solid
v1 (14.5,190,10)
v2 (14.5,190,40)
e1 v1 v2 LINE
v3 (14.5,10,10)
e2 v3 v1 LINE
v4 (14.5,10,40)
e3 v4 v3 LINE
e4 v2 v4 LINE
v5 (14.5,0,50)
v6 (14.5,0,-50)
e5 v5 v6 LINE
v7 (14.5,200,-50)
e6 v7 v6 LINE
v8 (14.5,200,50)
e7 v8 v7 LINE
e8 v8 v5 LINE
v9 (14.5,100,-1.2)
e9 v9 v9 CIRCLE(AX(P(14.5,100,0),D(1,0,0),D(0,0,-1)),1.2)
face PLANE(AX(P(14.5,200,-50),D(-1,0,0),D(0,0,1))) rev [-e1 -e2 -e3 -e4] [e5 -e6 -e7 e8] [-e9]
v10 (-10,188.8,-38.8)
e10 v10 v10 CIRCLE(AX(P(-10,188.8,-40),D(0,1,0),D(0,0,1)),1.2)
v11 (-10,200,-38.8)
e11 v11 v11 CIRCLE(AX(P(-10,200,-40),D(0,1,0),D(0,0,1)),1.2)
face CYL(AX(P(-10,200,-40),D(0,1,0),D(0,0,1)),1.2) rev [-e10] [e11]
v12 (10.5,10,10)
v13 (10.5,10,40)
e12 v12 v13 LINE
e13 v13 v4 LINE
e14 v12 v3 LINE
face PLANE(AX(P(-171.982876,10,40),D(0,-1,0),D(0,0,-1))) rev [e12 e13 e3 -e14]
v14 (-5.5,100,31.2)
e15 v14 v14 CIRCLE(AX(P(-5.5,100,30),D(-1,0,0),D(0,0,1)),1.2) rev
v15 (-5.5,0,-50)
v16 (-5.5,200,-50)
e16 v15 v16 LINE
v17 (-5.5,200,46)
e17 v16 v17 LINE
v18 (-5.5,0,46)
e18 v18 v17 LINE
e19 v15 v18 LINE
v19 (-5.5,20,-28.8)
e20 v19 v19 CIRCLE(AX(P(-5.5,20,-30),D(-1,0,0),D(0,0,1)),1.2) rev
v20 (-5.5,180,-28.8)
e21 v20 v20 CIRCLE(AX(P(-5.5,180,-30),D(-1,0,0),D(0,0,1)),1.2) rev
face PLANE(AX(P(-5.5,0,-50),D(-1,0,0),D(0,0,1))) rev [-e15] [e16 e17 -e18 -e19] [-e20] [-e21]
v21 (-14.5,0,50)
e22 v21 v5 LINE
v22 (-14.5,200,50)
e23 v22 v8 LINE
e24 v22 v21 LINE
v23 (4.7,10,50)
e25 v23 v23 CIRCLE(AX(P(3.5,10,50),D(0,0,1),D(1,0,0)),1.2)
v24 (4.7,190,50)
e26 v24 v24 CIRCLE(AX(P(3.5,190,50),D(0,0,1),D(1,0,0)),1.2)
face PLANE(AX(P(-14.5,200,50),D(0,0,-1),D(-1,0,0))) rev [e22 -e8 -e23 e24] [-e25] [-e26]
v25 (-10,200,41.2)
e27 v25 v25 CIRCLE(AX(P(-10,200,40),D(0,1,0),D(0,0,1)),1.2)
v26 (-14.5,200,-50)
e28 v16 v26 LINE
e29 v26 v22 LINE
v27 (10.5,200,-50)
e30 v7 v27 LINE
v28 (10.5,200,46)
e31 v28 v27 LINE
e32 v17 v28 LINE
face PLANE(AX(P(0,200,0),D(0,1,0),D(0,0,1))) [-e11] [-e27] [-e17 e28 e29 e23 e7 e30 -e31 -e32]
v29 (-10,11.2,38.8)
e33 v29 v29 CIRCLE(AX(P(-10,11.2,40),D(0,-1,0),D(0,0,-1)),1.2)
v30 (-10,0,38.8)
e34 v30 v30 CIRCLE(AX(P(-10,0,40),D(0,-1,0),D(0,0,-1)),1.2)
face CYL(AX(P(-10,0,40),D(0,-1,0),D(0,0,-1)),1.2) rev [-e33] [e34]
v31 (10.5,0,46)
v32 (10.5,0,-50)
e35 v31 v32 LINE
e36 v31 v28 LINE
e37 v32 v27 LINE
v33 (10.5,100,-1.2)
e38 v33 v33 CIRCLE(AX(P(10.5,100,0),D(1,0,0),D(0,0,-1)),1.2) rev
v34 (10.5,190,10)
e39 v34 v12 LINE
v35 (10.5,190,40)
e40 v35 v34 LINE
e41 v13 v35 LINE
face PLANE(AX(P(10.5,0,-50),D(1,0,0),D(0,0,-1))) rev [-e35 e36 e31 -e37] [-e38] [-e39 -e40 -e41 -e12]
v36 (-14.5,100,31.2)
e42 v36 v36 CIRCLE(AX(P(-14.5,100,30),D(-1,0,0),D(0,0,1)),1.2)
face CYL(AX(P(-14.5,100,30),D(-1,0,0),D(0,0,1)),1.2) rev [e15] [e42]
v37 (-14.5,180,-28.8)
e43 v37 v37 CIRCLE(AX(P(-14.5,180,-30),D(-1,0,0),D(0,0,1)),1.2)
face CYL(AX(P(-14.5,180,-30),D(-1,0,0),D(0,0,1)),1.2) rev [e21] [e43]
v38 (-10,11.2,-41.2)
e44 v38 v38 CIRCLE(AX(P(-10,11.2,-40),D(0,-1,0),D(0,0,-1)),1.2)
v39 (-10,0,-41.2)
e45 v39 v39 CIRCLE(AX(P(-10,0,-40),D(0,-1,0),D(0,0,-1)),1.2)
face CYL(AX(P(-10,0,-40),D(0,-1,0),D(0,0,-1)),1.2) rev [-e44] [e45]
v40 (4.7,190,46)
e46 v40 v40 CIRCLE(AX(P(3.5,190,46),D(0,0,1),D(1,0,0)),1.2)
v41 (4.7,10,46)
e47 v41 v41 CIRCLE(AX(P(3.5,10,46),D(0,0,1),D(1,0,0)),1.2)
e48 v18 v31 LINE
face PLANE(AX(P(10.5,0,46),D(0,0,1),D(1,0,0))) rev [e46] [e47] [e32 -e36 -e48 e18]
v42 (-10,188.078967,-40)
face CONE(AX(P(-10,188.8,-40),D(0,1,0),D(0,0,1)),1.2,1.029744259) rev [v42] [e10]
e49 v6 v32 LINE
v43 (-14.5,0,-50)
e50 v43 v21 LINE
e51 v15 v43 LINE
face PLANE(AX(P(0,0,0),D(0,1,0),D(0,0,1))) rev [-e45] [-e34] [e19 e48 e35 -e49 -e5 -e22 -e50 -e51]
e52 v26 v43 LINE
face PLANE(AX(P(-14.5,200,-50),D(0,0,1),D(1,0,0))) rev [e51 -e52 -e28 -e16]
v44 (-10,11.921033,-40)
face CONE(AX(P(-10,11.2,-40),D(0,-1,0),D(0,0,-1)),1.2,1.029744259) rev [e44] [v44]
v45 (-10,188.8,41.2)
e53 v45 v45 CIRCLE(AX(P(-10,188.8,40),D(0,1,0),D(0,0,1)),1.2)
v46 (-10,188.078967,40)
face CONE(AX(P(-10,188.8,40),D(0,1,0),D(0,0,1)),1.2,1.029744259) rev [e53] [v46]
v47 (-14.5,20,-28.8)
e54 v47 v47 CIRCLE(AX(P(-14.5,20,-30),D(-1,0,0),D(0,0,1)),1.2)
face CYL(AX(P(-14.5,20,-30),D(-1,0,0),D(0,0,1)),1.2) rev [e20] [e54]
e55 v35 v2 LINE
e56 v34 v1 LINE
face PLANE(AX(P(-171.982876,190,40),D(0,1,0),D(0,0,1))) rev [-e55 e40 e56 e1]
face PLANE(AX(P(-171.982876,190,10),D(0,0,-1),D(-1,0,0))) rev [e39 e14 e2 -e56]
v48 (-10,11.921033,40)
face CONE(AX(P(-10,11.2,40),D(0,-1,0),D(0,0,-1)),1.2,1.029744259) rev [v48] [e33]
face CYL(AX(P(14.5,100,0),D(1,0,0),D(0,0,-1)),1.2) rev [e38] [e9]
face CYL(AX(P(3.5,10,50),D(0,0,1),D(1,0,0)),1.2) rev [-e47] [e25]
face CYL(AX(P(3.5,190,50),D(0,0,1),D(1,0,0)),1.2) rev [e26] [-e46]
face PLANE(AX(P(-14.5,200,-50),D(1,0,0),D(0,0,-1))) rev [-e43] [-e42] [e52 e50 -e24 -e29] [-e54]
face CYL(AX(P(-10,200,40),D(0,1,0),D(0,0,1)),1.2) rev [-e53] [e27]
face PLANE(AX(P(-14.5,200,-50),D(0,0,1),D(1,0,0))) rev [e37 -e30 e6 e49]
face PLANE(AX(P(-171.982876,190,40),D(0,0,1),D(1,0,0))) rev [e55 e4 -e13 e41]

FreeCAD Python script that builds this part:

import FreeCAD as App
import Part
import Sketcher

V = App.Vector
Q = App.Units.Quantity


def add_polygon(sketch, points):
    """Adds a closed chain of lines whose ends are joined by coincident constraints."""
    first, n = sketch.GeometryCount, len(points)
    for a, b in zip(points, points[1:] + points[:1]):
        sketch.addGeometry(Part.LineSegment(App.Vector(*a, 0), App.Vector(*b, 0)), False)
    for i in range(n):
        sketch.addConstraint(Sketcher.Constraint("Coincident", first + i, 2, first + (i + 1) % n, 1))

doc = App.newDocument("Part")
body = doc.addObject("PartDesign::Body", "Body")

sketch1 = body.newObject("Sketcher::SketchObject", "Sketch")
sketch1.AttachmentSupport = (doc.getObject("XZ_Plane"), [""])
sketch1.MapMode = "FlatFace"
add_polygon(sketch1, [(-14.5, -50), (-14.5, 50), (14.5, 50), (14.5, -50)])
sketch1.addConstraint([
    Sketcher.Constraint("Vertical", 0),
    Sketcher.Constraint("Horizontal", 1),
    Sketcher.Constraint("Vertical", 2),
    Sketcher.Constraint("Horizontal", 3),
    Sketcher.Constraint("Symmetric", 0, 2, 2, 2, -1, 1),
    Sketcher.Constraint("DistanceX", 1, 1, 1, 2, Q("29 mm")),
    Sketcher.Constraint("DistanceY", 0, 1, 0, 2, Q("100 mm")),
])
pad1 = body.newObject("PartDesign::Pad", "Pad")
pad1.Profile = sketch1
pad1.Length = 200
pad1.Reversed = True

sketch2 = body.newObject("Sketcher::SketchObject", "Sketch001")
sketch2.AttachmentSupport = (doc.getObject("XZ_Plane"), [""])
sketch2.MapMode = "FlatFace"
sketch2.AttachmentOffset = App.Placement(V(0, 0, -200), App.Rotation())
add_polygon(sketch2, [(-5.5, -50), (-5.5, 46), (10.5, 46), (10.5, -50)])
sketch2.addConstraint([
    Sketcher.Constraint("Vertical", 0),
    Sketcher.Constraint("Horizontal", 1),
    Sketcher.Constraint("Vertical", 2),
    Sketcher.Constraint("Horizontal", 3),
    Sketcher.Constraint("DistanceX", 1, 1, 1, 2, Q("16 mm")),
    Sketcher.Constraint("DistanceY", 0, 1, 0, 2, Q("96 mm")),
    Sketcher.Constraint("DistanceY", -1, 1, 0, 2, Q("46 mm")),
    Sketcher.Constraint("DistanceX", 0, 2, -1, 1, Q("5.5 mm")),
])
pocket1 = body.newObject("PartDesign::Pocket", "Pocket")
pocket1.Profile = sketch2
pocket1.Type = "ThroughAll"
pocket1.Reversed = True

sketch3 = body.newObject("Sketcher::SketchObject", "Sketch002")
sketch3.AttachmentSupport = (doc.getObject("YZ_Plane"), [""])
sketch3.MapMode = "FlatFace"
sketch3.AttachmentOffset = App.Placement(V(0, 0, 14.5), App.Rotation())
add_polygon(sketch3, [(190, 40), (10, 40), (10, 10), (190, 10)])
sketch3.addConstraint([
    Sketcher.Constraint("Horizontal", 0),
    Sketcher.Constraint("Vertical", 1),
    Sketcher.Constraint("Horizontal", 2),
    Sketcher.Constraint("Vertical", 3),
    Sketcher.Constraint("DistanceX", 0, 2, 0, 1, Q("180 mm")),
    Sketcher.Constraint("DistanceY", 1, 2, 1, 1, Q("30 mm")),
    Sketcher.Constraint("DistanceX", -1, 1, 0, 2, Q("10 mm")),
    Sketcher.Constraint("DistanceY", -1, 1, 0, 2, Q("40 mm")),
])
pocket2 = body.newObject("PartDesign::Pocket", "Pocket001")
pocket2.Profile = sketch3
pocket2.Length = 4

sketch4 = body.newObject("Sketcher::SketchObject", "Sketch003")
sketch4.AttachmentSupport = (doc.getObject("XZ_Plane"), [""])
sketch4.MapMode = "FlatFace"
sketch4.AttachmentOffset = App.Placement(V(0, 0, -200), App.Rotation())
sketch4.addGeometry([
    Part.Circle(V(-10, -40, 0), V(0, 0, 1), 1.2),
    Part.Circle(V(-10, 40, 0), V(0, 0, 1), 1.2),
], False)
sketch4.addConstraint([
    Sketcher.Constraint("Equal", 0, 1),
    Sketcher.Constraint("Symmetric", 0, 3, 1, 3, -1),
    Sketcher.Constraint("Diameter", 0, Q("2.4 mm")),
    Sketcher.Constraint("DistanceX", 0, 3, -1, 1, Q("10 mm")),
    Sketcher.Constraint("DistanceY", 0, 3, -1, 1, Q("40 mm")),
])
doc.recompute()
hole = body.newObject("PartDesign::Hole", "Hole")
hole.Profile = sketch4
hole.ThreadType = "None"
hole.Diameter = 2.4
hole.DepthType = "Dimension"
hole.Depth = 11.2
hole.DrillPoint = "Angled"
hole.DrillPointAngle = 118
hole.Reversed = True

sketch5 = body.newObject("Sketcher::SketchObject", "Sketch004")
sketch5.AttachmentSupport = (doc.getObject("XZ_Plane"), [""])
sketch5.MapMode = "FlatFace"
sketch5.addGeometry([
    Part.Circle(V(-10, -40, 0), V(0, 0, 1), 1.2),
    Part.Circle(V(-10, 40, 0), V(0, 0, 1), 1.2),
], False)
sketch5.addConstraint([
    Sketcher.Constraint("Equal", 0, 1),
    Sketcher.Constraint("Symmetric", 0, 3, 1, 3, -1),
    Sketcher.Constraint("Diameter", 0, Q("2.4 mm")),
    Sketcher.Constraint("DistanceX", 0, 3, -1, 1, Q("10 mm")),
    Sketcher.Constraint("DistanceY", 0, 3, -1, 1, Q("40 mm")),
])
doc.recompute()
hole2 = body.newObject("PartDesign::Hole", "Hole001")
hole2.Profile = sketch5
hole2.ThreadType = "None"
hole2.Diameter = 2.4
hole2.DepthType = "Dimension"
hole2.Depth = 11.2
hole2.DrillPoint = "Angled"
hole2.DrillPointAngle = 118

sketch6 = body.newObject("Sketcher::SketchObject", "Sketch005")
sketch6.AttachmentSupport = (doc.getObject("YZ_Plane"), [""])
sketch6.MapMode = "FlatFace"
sketch6.AttachmentOffset = App.Placement(V(0, 0, -14.5), App.Rotation())
sketch6.addGeometry(Part.Circle(V(180, -30, 0), V(0, 0, 1), 1.2), False)
sketch6.addConstraint([
    Sketcher.Constraint("Diameter", 0, Q("2.4 mm")),
    Sketcher.Constraint("DistanceX", -1, 1, 0, 3, Q("180 mm")),
    Sketcher.Constraint("DistanceY", 0, 3, -1, 1, Q("30 mm")),
])
pocket3 = body.newObject("PartDesign::Pocket", "Pocket002")
pocket3.Profile = sketch6
pocket3.Type = "UpToFirst"
pocket3.Reversed = True

sketch7 = body.newObject("Sketcher::SketchObject", "Sketch006")
sketch7.AttachmentSupport = (doc.getObject("YZ_Plane"), [""])
sketch7.MapMode = "FlatFace"
sketch7.AttachmentOffset = App.Placement(V(0, 0, -14.5), App.Rotation())
sketch7.addGeometry(Part.Circle(V(20, -30, 0), V(0, 0, 1), 1.2), False)
sketch7.addConstraint([
    Sketcher.Constraint("Diameter", 0, Q("2.4 mm")),
    Sketcher.Constraint("DistanceX", -1, 1, 0, 3, Q("20 mm")),
    Sketcher.Constraint("DistanceY", 0, 3, -1, 1, Q("30 mm")),
])
pocket4 = body.newObject("PartDesign::Pocket", "Pocket003")
pocket4.Profile = sketch7
pocket4.Type = "UpToFirst"
pocket4.Reversed = True

sketch8 = body.newObject("Sketcher::SketchObject", "Sketch007")
sketch8.AttachmentSupport = (doc.getObject("YZ_Plane"), [""])
sketch8.MapMode = "FlatFace"
sketch8.AttachmentOffset = App.Placement(V(0, 0, -14.5), App.Rotation())
sketch8.addGeometry(Part.Circle(V(100, 30, 0), V(0, 0, 1), 1.2), False)
sketch8.addConstraint([
    Sketcher.Constraint("Diameter", 0, Q("2.4 mm")),
    Sketcher.Constraint("DistanceX", -1, 1, 0, 3, Q("100 mm")),
    Sketcher.Constraint("DistanceY", -1, 1, 0, 3, Q("30 mm")),
])
pocket5 = body.newObject("PartDesign::Pocket", "Pocket004")
pocket5.Profile = sketch8
pocket5.Type = "UpToFirst"
pocket5.Reversed = True

sketch9 = body.newObject("Sketcher::SketchObject", "Sketch008")
sketch9.AttachmentSupport = (doc.getObject("YZ_Plane"), [""])
sketch9.MapMode = "FlatFace"
sketch9.AttachmentOffset = App.Placement(V(0, 0, 14.5), App.Rotation())
sketch9.addGeometry(Part.Circle(V(100, 0, 0), V(0, 0, 1), 1.2), False)
sketch9.addConstraint([
    Sketcher.Constraint("PointOnObject", 0, 3, -1),
    Sketcher.Constraint("Diameter", 0, Q("2.4 mm")),
    Sketcher.Constraint("DistanceX", -1, 1, 0, 3, Q("100 mm")),
])
pocket6 = body.newObject("PartDesign::Pocket", "Pocket005")
pocket6.Profile = sketch9
pocket6.Type = "UpToFirst"

sketch10 = body.newObject("Sketcher::SketchObject", "Sketch009")
sketch10.AttachmentSupport = (doc.getObject("XY_Plane"), [""])
sketch10.MapMode = "FlatFace"
sketch10.AttachmentOffset = App.Placement(V(0, 0, 50), App.Rotation())
sketch10.addGeometry([
    Part.Circle(V(3.5, 10, 0), V(0, 0, 1), 1.2),
    Part.Circle(V(3.5, 190, 0), V(0, 0, 1), 1.2),
], False)
sketch10.addConstraint([
    Sketcher.Constraint("Equal", 0, 1),
    Sketcher.Constraint("Vertical", 0, 3, 1, 3),
    Sketcher.Constraint("Diameter", 0, Q("2.4 mm")),
    Sketcher.Constraint("DistanceY", -1, 1, 0, 3, Q("10 mm")),
    Sketcher.Constraint("DistanceY", -1, 1, 1, 3, Q("190 mm")),
    Sketcher.Constraint("DistanceX", -1, 1, 0, 3, Q("3.5 mm")),
])
doc.recompute()
hole3 = body.newObject("PartDesign::Hole", "Hole002")
hole3.Profile = sketch10
hole3.ThreadType = "None"
hole3.Diameter = 2.4
hole3.DepthType = "ThroughAll"

doc.recompute()
